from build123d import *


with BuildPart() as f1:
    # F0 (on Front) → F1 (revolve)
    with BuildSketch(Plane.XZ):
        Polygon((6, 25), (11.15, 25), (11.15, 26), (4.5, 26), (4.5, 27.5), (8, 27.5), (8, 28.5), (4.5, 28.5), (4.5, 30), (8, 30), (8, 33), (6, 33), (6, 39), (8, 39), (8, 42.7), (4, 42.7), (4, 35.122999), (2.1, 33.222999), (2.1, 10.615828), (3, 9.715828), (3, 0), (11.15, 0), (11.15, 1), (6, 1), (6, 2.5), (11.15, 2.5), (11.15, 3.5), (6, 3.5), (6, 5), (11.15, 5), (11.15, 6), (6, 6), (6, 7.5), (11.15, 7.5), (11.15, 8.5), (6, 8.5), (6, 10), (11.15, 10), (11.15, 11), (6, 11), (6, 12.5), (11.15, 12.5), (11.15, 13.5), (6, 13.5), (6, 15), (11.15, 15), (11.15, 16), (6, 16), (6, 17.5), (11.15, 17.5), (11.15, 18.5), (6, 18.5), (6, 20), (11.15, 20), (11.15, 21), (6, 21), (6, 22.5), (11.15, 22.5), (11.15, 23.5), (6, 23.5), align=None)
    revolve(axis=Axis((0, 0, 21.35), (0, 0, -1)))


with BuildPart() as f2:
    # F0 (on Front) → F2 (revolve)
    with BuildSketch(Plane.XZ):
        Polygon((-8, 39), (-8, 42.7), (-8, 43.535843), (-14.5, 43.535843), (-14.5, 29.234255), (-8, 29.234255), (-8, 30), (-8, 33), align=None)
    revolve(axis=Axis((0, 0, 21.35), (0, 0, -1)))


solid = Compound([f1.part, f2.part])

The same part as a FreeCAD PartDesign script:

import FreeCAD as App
import Part
import Sketcher

V = App.Vector
Q = App.Units.Quantity

doc = App.newDocument("Part")
params = doc.addObject("Spreadsheet::Sheet", "Params")
for row, (alias, value) in enumerate([
    ("sketch1_width", "2 mm"),
    ("sketch1_width2", "4 mm"),
    ("sketch1_height", "1 mm"),
    ("sketch1_height2", "3 mm"),
    ("sketch1_height3", "6 mm"),
    ("revolution_angle", "360 deg"),
    ("sketch2_width", "6.5 mm"),
    ("revolution2_angle", "360 deg"),
], start=1):
    params.set(f"A{row}", alias)
    params.set(f"B{row}", "=" + value)
    params.setAlias(f"B{row}", alias)

body = doc.addObject("PartDesign::Body", "Body")

sketch1 = doc.addObject("Sketcher::SketchObject", "Sketch")
body.addObject(sketch1)
sketch1.AttachmentSupport = (doc.XZ_Plane, [""])
sketch1.MapMode = "FlatFace"
sketch1.addGeometry([
    Part.LineSegment(V(6, 25, 0), V(11.2, 25, 0)),
    Part.LineSegment(V(11.2, 25, 0), V(11.2, 26, 0)),
    Part.LineSegment(V(11.2, 26, 0), V(4.5, 26, 0)),
    Part.LineSegment(V(4.5, 26, 0), V(4.5, 27.5, 0)),
    Part.LineSegment(V(4.5, 27.5, 0), V(8, 27.5, 0)),
    Part.LineSegment(V(8, 27.5, 0), V(8, 28.5, 0)),
    Part.LineSegment(V(8, 28.5, 0), V(4.5, 28.5, 0)),
    Part.LineSegment(V(4.5, 28.5, 0), V(4.5, 30, 0)),
    Part.LineSegment(V(4.5, 30, 0), V(8, 30, 0)),
    Part.LineSegment(V(8, 30, 0), V(8, 33, 0)),
    Part.LineSegment(V(8, 33, 0), V(6, 33, 0)),
    Part.LineSegment(V(6, 33, 0), V(6, 39, 0)),
    Part.LineSegment(V(6, 39, 0), V(8, 39, 0)),
    Part.LineSegment(V(8, 39, 0), V(8, 42.7, 0)),
    Part.LineSegment(V(8, 42.7, 0), V(4, 42.7, 0)),
    Part.LineSegment(V(4, 42.7, 0), V(4, 35.1, 0)),
    Part.LineSegment(V(4, 35.1, 0), V(2.1, 33.2, 0)),
    Part.LineSegment(V(2.1, 33.2, 0), V(2.1, 10.6, 0)),
    Part.LineSegment(V(2.1, 10.6, 0), V(3, 9.7, 0)),
    Part.LineSegment(V(3, 9.7, 0), V(3, 0, 0)),
    Part.LineSegment(V(3, 0, 0), V(11.2, 0, 0)),
    Part.LineSegment(V(11.2, 0, 0), V(11.2, 1, 0)),
    Part.LineSegment(V(11.2, 1, 0), V(6, 1, 0)),
    Part.LineSegment(V(6, 1, 0), V(6, 2.5, 0)),
    Part.LineSegment(V(6, 2.5, 0), V(11.2, 2.5, 0)),
    Part.LineSegment(V(11.2, 2.5, 0), V(11.2, 3.5, 0)),
    Part.LineSegment(V(11.2, 3.5, 0), V(6, 3.5, 0)),
    Part.LineSegment(V(6, 3.5, 0), V(6, 5, 0)),
    Part.LineSegment(V(6, 5, 0), V(11.2, 5, 0)),
    Part.LineSegment(V(11.2, 5, 0), V(11.2, 6, 0)),
    Part.LineSegment(V(11.2, 6, 0), V(6, 6, 0)),
    Part.LineSegment(V(6, 6, 0), V(6, 7.5, 0)),
    Part.LineSegment(V(6, 7.5, 0), V(11.2, 7.5, 0)),
    Part.LineSegment(V(11.2, 7.5, 0), V(11.2, 8.5, 0)),
    Part.LineSegment(V(11.2, 8.5, 0), V(6, 8.5, 0)),
    Part.LineSegment(V(6, 8.5, 0), V(6, 10, 0)),
    Part.LineSegment(V(6, 10, 0), V(11.2, 10, 0)),
    Part.LineSegment(V(11.2, 10, 0), V(11.2, 11, 0)),
    Part.LineSegment(V(11.2, 11, 0), V(6, 11, 0)),
    Part.LineSegment(V(6, 11, 0), V(6, 12.5, 0)),
    Part.LineSegment(V(6, 12.5, 0), V(11.2, 12.5, 0)),
    Part.LineSegment(V(11.2, 12.5, 0), V(11.2, 13.5, 0)),
    Part.LineSegment(V(11.2, 13.5, 0), V(6, 13.5, 0)),
    Part.LineSegment(V(6, 13.5, 0), V(6, 15, 0)),
    Part.LineSegment(V(6, 15, 0), V(11.2, 15, 0)),
    Part.LineSegment(V(11.2, 15, 0), V(11.2, 16, 0)),
    Part.LineSegment(V(11.2, 16, 0), V(6, 16, 0)),
    Part.LineSegment(V(6, 16, 0), V(6, 17.5, 0)),
    Part.LineSegment(V(6, 17.5, 0), V(11.2, 17.5, 0)),
    Part.LineSegment(V(11.2, 17.5, 0), V(11.2, 18.5, 0)),
    Part.LineSegment(V(11.2, 18.5, 0), V(6, 18.5, 0)),
    Part.LineSegment(V(6, 18.5, 0), V(6, 20, 0)),
    Part.LineSegment(V(6, 20, 0), V(11.2, 20, 0)),
    Part.LineSegment(V(11.2, 20, 0), V(11.2, 21, 0)),
    Part.LineSegment(V(11.2, 21, 0), V(6, 21, 0)),
    Part.LineSegment(V(6, 21, 0), V(6, 22.5, 0)),
    Part.LineSegment(V(6, 22.5, 0), V(11.2, 22.5, 0)),
    Part.LineSegment(V(11.2, 22.5, 0), V(11.2, 23.5, 0)),
    Part.LineSegment(V(11.2, 23.5, 0), V(6, 23.5, 0)),
    Part.LineSegment(V(6, 23.5, 0), V(6, 25, 0)),
], False)
sketch1.addConstraint([
    Sketcher.Constraint("Coincident", 0, 2, 1, 1),
    Sketcher.Constraint("Coincident", 1, 2, 2, 1),
    Sketcher.Constraint("Coincident", 2, 2, 3, 1),
    Sketcher.Constraint("Coincident", 3, 2, 4, 1),
    Sketcher.Constraint("Coincident", 4, 2, 5, 1),
    Sketcher.Constraint("Coincident", 5, 2, 6, 1),
    Sketcher.Constraint("Coincident", 6, 2, 7, 1),
    Sketcher.Constraint("Coincident", 7, 2, 8, 1),
    Sketcher.Constraint("Coincident", 8, 2, 9, 1),
    Sketcher.Constraint("Coincident", 9, 2, 10, 1),
    Sketcher.Constraint("Coincident", 10, 2, 11, 1),
    Sketcher.Constraint("Coincident", 11, 2, 12, 1),
    Sketcher.Constraint("Coincident", 12, 2, 13, 1),
    Sketcher.Constraint("Coincident", 13, 2, 14, 1),
    Sketcher.Constraint("Coincident", 14, 2, 15, 1),
    Sketcher.Constraint("Coincident", 15, 2, 16, 1),
    Sketcher.Constraint("Coincident", 16, 2, 17, 1),
    Sketcher.Constraint("Coincident", 17, 2, 18, 1),
    Sketcher.Constraint("Coincident", 18, 2, 19, 1),
    Sketcher.Constraint("Coincident", 19, 2, 20, 1),
    Sketcher.Constraint("Coincident", 20, 2, 21, 1),
    Sketcher.Constraint("Coincident", 21, 2, 22, 1),
    Sketcher.Constraint("Coincident", 22, 2, 23, 1),
    Sketcher.Constraint("Coincident", 23, 2, 24, 1),
    Sketcher.Constraint("Coincident", 24, 2, 25, 1),
    Sketcher.Constraint("Coincident", 25, 2, 26, 1),
    Sketcher.Constraint("Coincident", 26, 2, 27, 1),
    Sketcher.Constraint("Coincident", 27, 2, 28, 1),
    Sketcher.Constraint("Coincident", 28, 2, 29, 1),
    Sketcher.Constraint("Coincident", 29, 2, 30, 1),
    Sketcher.Constraint("Coincident", 30, 2, 31, 1),
    Sketcher.Constraint("Coincident", 31, 2, 32, 1),
    Sketcher.Constraint("Coincident", 32, 2, 33, 1),
    Sketcher.Constraint("Coincident", 33, 2, 34, 1),
    Sketcher.Constraint("Coincident", 34, 2, 35, 1),
    Sketcher.Constraint("Coincident", 35, 2, 36, 1),
    Sketcher.Constraint("Coincident", 36, 2, 37, 1),
    Sketcher.Constraint("Coincident", 37, 2, 38, 1),
    Sketcher.Constraint("Coincident", 38, 2, 39, 1),
    Sketcher.Constraint("Coincident", 39, 2, 40, 1),
    Sketcher.Constraint("Coincident", 40, 2, 41, 1),
    Sketcher.Constraint("Coincident", 41, 2, 42, 1),
    Sketcher.Constraint("Coincident", 42, 2, 43, 1),
    Sketcher.Constraint("Coincident", 43, 2, 44, 1),
    Sketcher.Constraint("Coincident", 44, 2, 45, 1),
    Sketcher.Constraint("Coincident", 45, 2, 46, 1),
    Sketcher.Constraint("Coincident", 46, 2, 47, 1),
    Sketcher.Constraint("Coincident", 47, 2, 48, 1),
    Sketcher.Constraint("Coincident", 48, 2, 49, 1),
    Sketcher.Constraint("Coincident", 49, 2, 50, 1),
    Sketcher.Constraint("Coincident", 50, 2, 51, 1),
    Sketcher.Constraint("Coincident", 51, 2, 52, 1),
    Sketcher.Constraint("Coincident", 52, 2, 53, 1),
    Sketcher.Constraint("Coincident", 53, 2, 54, 1),
    Sketcher.Constraint("Coincident", 54, 2, 55, 1),
    Sketcher.Constraint("Coincident", 55, 2, 56, 1),
    Sketcher.Constraint("Coincident", 56, 2, 57, 1),
    Sketcher.Constraint("Coincident", 57, 2, 58, 1),
    Sketcher.Constraint("Coincident", 58, 2, 59, 1),
    Sketcher.Constraint("Coincident", 59, 2, 0, 1),
    Sketcher.Constraint("Horizontal", 0),
    Sketcher.Constraint("Vertical", 1),
    Sketcher.Constraint("Horizontal", 2),
    Sketcher.Constraint("Vertical", 3),
    Sketcher.Constraint("Horizontal", 4),
    Sketcher.Constraint("Vertical", 5),
    Sketcher.Constraint("Horizontal", 6),
    Sketcher.Constraint("Vertical", 7),
    Sketcher.Constraint("Horizontal", 8),
    Sketcher.Constraint("Vertical", 9),
    Sketcher.Constraint("Horizontal", 10),
    Sketcher.Constraint("Vertical", 11),
    Sketcher.Constraint("Horizontal", 12),
    Sketcher.Constraint("Vertical", 13),
    Sketcher.Constraint("Horizontal", 14),
    Sketcher.Constraint("Vertical", 15),
    Sketcher.Constraint("Vertical", 17),
    Sketcher.Constraint("Vertical", 19),
    Sketcher.Constraint("Horizontal", 20),
    Sketcher.Constraint("Vertical", 21),
    Sketcher.Constraint("Horizontal", 22),
    Sketcher.Constraint("Vertical", 23),
    Sketcher.Constraint("Horizontal", 24),
    Sketcher.Constraint("Vertical", 25),
    Sketcher.Constraint("Horizontal", 26),
    Sketcher.Constraint("Vertical", 27),
    Sketcher.Constraint("Horizontal", 28),
    Sketcher.Constraint("Vertical", 29),
    Sketcher.Constraint("Horizontal", 30),
    Sketcher.Constraint("Vertical", 31),
    Sketcher.Constraint("Horizontal", 32),
    Sketcher.Constraint("Vertical", 33),
    Sketcher.Constraint("Horizontal", 34),
    Sketcher.Constraint("Vertical", 35),
    Sketcher.Constraint("Horizontal", 36),
    Sketcher.Constraint("Vertical", 37),
    Sketcher.Constraint("Horizontal", 38),
    Sketcher.Constraint("Vertical", 39),
    Sketcher.Constraint("Horizontal", 40),
    Sketcher.Constraint("Vertical", 41),
    Sketcher.Constraint("Horizontal", 42),
    Sketcher.Constraint("Vertical", 43),
    Sketcher.Constraint("Horizontal", 44),
    Sketcher.Constraint("Vertical", 45),
    Sketcher.Constraint("Horizontal", 46),
    Sketcher.Constraint("Vertical", 47),
    Sketcher.Constraint("Horizontal", 48),
    Sketcher.Constraint("Vertical", 49),
    Sketcher.Constraint("Horizontal", 50),
    Sketcher.Constraint("Vertical", 51),
    Sketcher.Constraint("Horizontal", 52),
    Sketcher.Constraint("Vertical", 53),
    Sketcher.Constraint("Horizontal", 54),
    Sketcher.Constraint("Vertical", 55),
    Sketcher.Constraint("Horizontal", 56),
    Sketcher.Constraint("Vertical", 57),
    Sketcher.Constraint("Horizontal", 58),
    Sketcher.Constraint("Vertical", 59),
    Sketcher.Constraint("PointOnObject", 19, 2, -1),
    Sketcher.Constraint("Perpendicular", 16, 18),
    Sketcher.Constraint("Vertical", 3, 2, 6, 2),
    Sketcher.Constraint("Vertical", 5, 2, 8, 2),
    Sketcher.Constraint("Vertical", 9, 2, 12, 2),
    Sketcher.Constraint("Vertical", 1, 2, 20, 2),
    Sketcher.Constraint("Vertical", 11, 2, 22, 2),
    Sketcher.Constraint("Vertical", 21, 2, 24, 2),
    Sketcher.Constraint("Vertical", 23, 2, 26, 2),
    Sketcher.Constraint("Vertical", 25, 2, 28, 2),
    Sketcher.Constraint("Vertical", 27, 2, 30, 2),
    Sketcher.Constraint("Vertical", 29, 2, 32, 2),
    Sketcher.Constraint("Vertical", 31, 2, 34, 2),
    Sketcher.Constraint("Vertical", 33, 2, 36, 2),
    Sketcher.Constraint("Vertical", 35, 2, 38, 2),
    Sketcher.Constraint("Vertical", 37, 2, 40, 2),
    Sketcher.Constraint("Vertical", 39, 2, 42, 2),
    Sketcher.Constraint("Vertical", 41, 2, 44, 2),
    Sketcher.Constraint("Vertical", 43, 2, 46, 2),
    Sketcher.Constraint("Vertical", 45, 2, 48, 2),
    Sketcher.Constraint("Vertical", 47, 2, 50, 2),
    Sketcher.Constraint("Vertical", 49, 2, 52, 2),
    Sketcher.Constraint("Vertical", 51, 2, 54, 2),
    Sketcher.Constraint("Vertical", 53, 2, 56, 2),
    Sketcher.Constraint("Vertical", 55, 2, 58, 2),
    Sketcher.Constraint("Equal", 1, 5),
    Sketcher.Constraint("Equal", 3, 7),
    Sketcher.Constraint("Equal", 5, 21),
    Sketcher.Constraint("Equal", 7, 23),
    Sketcher.Constraint("Equal", 21, 25),
    Sketcher.Constraint("Equal", 23, 27),
    Sketcher.Constraint("Equal", 25, 29),
    Sketcher.Constraint("Equal", 27, 31),
    Sketcher.Constraint("Equal", 29, 33),
    Sketcher.Constraint("Equal", 31, 35),
    Sketcher.Constraint("Equal", 33, 37),
    Sketcher.Constraint("Equal", 35, 39),
    Sketcher.Constraint("Equal", 37, 41),
    Sketcher.Constraint("Equal", 39, 43),
    Sketcher.Constraint("Equal", 41, 45),
    Sketcher.Constraint("Equal", 43, 47),
    Sketcher.Constraint("Equal", 45, 49),
    Sketcher.Constraint("Equal", 47, 51),
    Sketcher.Constraint("Equal", 49, 53),
    Sketcher.Constraint("Equal", 51, 55),
    Sketcher.Constraint("Equal", 53, 57),
    Sketcher.Constraint("Equal", 55, 59),
    Sketcher.Constraint("DistanceX", 10, 2, 10, 1, Q("2 mm")),
    Sketcher.Constraint("DistanceX", 14, 2, 14, 1, Q("4 mm")),
    Sketcher.Constraint("DistanceY", 1, 1, 1, 2, Q("1 mm")),
    Sketcher.Constraint("DistanceY", 9, 1, 9, 2, Q("3 mm")),
    Sketcher.Constraint("DistanceY", 11, 1, 11, 2, Q("6 mm")),
    Sketcher.Constraint("Angle", 16, Q("-135 deg")),
    Sketcher.Constraint("DistanceX", 4, 1, 4, 2, Q("3.5 mm")),
    Sketcher.Constraint("DistanceY", 3, 1, 3, 2, Q("1.5 mm")),
    Sketcher.Constraint("DistanceY", 13, 1, 13, 2, Q("3.7 mm")),
    Sketcher.Constraint("DistanceX", -1, 1, 4, 2, Q("8 mm")),
    Sketcher.Constraint("DistanceX", -1, 1, 18, 2, Q("3 mm")),
    Sketcher.Constraint("DistanceX", 0, 1, 0, 2, Q("5.15 mm")),
    Sketcher.Constraint("DistanceX", -1, 1, 16, 2, Q("2.1 mm")),
    Sketcher.Constraint("DistanceY", 15, 2, 15, 1, Q("7.577001 mm")),
    Sketcher.Constraint("DistanceY", 17, 2, 17, 1, Q("22.607171 mm")),
])
sketch1.setExpression("Constraints[165]", "Params.sketch1_width")
sketch1.setExpression("Constraints[166]", "Params.sketch1_width2")
sketch1.setExpression("Constraints[167]", "Params.sketch1_height")
sketch1.setExpression("Constraints[168]", "Params.sketch1_height2")
sketch1.setExpression("Constraints[169]", "Params.sketch1_height3")
revolution = doc.addObject("PartDesign::Revolution", "Revolution")
body.addObject(revolution)
revolution.Profile = sketch1
revolution.ReferenceAxis = (sketch1, ["V_Axis"])
revolution.setExpression("Angle", "Params.revolution_angle")
body2 = doc.addObject("PartDesign::Body", "Body001")

sketch2 = doc.addObject("Sketcher::SketchObject", "Sketch001")
body2.addObject(sketch2)
sketch2.AttachmentSupport = (doc.getObject("XZ_Plane001"), [""])
sketch2.MapMode = "FlatFace"
sketch2.addGeometry([
    Part.LineSegment(V(-8, 44, 0), V(-14, 44, 0)),
    Part.LineSegment(V(-14, 44, 0), V(-14, 29, 0)),
    Part.LineSegment(V(-14, 29, 0), V(-8, 29, 0)),
    Part.LineSegment(V(-8, 29, 0), V(-8, 44, 0)),
], False)
sketch2.addConstraint([
    Sketcher.Constraint("Coincident", 0, 2, 1, 1),
    Sketcher.Constraint("Coincident", 1, 2, 2, 1),
    Sketcher.Constraint("Coincident", 2, 2, 3, 1),
    Sketcher.Constraint("Coincident", 3, 2, 0, 1),
    Sketcher.Constraint("Horizontal", 0),
    Sketcher.Constraint("Vertical", 1),
    Sketcher.Constraint("Horizontal", 2),
    Sketcher.Constraint("Vertical", 3),
    Sketcher.Constraint("DistanceX", 0, 2, 0, 1, Q("6.5 mm")),
    Sketcher.Constraint("DistanceX", 2, 2, -1, 1, Q("8 mm")),
    Sketcher.Constraint("DistanceY", 1, 2, 1, 1, Q("14.301588 mm")),
    Sketcher.Constraint("DistanceY", -1, 1, 0, 2, Q("43.535843 mm")),
])
sketch2.setExpression("Constraints[8]", "Params.sketch2_width")
revolution2 = doc.addObject("PartDesign::Revolution", "Revolution001")
body2.addObject(revolution2)
revolution2.Profile = sketch2
revolution2.ReferenceAxis = (sketch2, ["V_Axis"])
revolution2.setExpression("Angle", "Params.revolution2_angle")

doc.recompute()
